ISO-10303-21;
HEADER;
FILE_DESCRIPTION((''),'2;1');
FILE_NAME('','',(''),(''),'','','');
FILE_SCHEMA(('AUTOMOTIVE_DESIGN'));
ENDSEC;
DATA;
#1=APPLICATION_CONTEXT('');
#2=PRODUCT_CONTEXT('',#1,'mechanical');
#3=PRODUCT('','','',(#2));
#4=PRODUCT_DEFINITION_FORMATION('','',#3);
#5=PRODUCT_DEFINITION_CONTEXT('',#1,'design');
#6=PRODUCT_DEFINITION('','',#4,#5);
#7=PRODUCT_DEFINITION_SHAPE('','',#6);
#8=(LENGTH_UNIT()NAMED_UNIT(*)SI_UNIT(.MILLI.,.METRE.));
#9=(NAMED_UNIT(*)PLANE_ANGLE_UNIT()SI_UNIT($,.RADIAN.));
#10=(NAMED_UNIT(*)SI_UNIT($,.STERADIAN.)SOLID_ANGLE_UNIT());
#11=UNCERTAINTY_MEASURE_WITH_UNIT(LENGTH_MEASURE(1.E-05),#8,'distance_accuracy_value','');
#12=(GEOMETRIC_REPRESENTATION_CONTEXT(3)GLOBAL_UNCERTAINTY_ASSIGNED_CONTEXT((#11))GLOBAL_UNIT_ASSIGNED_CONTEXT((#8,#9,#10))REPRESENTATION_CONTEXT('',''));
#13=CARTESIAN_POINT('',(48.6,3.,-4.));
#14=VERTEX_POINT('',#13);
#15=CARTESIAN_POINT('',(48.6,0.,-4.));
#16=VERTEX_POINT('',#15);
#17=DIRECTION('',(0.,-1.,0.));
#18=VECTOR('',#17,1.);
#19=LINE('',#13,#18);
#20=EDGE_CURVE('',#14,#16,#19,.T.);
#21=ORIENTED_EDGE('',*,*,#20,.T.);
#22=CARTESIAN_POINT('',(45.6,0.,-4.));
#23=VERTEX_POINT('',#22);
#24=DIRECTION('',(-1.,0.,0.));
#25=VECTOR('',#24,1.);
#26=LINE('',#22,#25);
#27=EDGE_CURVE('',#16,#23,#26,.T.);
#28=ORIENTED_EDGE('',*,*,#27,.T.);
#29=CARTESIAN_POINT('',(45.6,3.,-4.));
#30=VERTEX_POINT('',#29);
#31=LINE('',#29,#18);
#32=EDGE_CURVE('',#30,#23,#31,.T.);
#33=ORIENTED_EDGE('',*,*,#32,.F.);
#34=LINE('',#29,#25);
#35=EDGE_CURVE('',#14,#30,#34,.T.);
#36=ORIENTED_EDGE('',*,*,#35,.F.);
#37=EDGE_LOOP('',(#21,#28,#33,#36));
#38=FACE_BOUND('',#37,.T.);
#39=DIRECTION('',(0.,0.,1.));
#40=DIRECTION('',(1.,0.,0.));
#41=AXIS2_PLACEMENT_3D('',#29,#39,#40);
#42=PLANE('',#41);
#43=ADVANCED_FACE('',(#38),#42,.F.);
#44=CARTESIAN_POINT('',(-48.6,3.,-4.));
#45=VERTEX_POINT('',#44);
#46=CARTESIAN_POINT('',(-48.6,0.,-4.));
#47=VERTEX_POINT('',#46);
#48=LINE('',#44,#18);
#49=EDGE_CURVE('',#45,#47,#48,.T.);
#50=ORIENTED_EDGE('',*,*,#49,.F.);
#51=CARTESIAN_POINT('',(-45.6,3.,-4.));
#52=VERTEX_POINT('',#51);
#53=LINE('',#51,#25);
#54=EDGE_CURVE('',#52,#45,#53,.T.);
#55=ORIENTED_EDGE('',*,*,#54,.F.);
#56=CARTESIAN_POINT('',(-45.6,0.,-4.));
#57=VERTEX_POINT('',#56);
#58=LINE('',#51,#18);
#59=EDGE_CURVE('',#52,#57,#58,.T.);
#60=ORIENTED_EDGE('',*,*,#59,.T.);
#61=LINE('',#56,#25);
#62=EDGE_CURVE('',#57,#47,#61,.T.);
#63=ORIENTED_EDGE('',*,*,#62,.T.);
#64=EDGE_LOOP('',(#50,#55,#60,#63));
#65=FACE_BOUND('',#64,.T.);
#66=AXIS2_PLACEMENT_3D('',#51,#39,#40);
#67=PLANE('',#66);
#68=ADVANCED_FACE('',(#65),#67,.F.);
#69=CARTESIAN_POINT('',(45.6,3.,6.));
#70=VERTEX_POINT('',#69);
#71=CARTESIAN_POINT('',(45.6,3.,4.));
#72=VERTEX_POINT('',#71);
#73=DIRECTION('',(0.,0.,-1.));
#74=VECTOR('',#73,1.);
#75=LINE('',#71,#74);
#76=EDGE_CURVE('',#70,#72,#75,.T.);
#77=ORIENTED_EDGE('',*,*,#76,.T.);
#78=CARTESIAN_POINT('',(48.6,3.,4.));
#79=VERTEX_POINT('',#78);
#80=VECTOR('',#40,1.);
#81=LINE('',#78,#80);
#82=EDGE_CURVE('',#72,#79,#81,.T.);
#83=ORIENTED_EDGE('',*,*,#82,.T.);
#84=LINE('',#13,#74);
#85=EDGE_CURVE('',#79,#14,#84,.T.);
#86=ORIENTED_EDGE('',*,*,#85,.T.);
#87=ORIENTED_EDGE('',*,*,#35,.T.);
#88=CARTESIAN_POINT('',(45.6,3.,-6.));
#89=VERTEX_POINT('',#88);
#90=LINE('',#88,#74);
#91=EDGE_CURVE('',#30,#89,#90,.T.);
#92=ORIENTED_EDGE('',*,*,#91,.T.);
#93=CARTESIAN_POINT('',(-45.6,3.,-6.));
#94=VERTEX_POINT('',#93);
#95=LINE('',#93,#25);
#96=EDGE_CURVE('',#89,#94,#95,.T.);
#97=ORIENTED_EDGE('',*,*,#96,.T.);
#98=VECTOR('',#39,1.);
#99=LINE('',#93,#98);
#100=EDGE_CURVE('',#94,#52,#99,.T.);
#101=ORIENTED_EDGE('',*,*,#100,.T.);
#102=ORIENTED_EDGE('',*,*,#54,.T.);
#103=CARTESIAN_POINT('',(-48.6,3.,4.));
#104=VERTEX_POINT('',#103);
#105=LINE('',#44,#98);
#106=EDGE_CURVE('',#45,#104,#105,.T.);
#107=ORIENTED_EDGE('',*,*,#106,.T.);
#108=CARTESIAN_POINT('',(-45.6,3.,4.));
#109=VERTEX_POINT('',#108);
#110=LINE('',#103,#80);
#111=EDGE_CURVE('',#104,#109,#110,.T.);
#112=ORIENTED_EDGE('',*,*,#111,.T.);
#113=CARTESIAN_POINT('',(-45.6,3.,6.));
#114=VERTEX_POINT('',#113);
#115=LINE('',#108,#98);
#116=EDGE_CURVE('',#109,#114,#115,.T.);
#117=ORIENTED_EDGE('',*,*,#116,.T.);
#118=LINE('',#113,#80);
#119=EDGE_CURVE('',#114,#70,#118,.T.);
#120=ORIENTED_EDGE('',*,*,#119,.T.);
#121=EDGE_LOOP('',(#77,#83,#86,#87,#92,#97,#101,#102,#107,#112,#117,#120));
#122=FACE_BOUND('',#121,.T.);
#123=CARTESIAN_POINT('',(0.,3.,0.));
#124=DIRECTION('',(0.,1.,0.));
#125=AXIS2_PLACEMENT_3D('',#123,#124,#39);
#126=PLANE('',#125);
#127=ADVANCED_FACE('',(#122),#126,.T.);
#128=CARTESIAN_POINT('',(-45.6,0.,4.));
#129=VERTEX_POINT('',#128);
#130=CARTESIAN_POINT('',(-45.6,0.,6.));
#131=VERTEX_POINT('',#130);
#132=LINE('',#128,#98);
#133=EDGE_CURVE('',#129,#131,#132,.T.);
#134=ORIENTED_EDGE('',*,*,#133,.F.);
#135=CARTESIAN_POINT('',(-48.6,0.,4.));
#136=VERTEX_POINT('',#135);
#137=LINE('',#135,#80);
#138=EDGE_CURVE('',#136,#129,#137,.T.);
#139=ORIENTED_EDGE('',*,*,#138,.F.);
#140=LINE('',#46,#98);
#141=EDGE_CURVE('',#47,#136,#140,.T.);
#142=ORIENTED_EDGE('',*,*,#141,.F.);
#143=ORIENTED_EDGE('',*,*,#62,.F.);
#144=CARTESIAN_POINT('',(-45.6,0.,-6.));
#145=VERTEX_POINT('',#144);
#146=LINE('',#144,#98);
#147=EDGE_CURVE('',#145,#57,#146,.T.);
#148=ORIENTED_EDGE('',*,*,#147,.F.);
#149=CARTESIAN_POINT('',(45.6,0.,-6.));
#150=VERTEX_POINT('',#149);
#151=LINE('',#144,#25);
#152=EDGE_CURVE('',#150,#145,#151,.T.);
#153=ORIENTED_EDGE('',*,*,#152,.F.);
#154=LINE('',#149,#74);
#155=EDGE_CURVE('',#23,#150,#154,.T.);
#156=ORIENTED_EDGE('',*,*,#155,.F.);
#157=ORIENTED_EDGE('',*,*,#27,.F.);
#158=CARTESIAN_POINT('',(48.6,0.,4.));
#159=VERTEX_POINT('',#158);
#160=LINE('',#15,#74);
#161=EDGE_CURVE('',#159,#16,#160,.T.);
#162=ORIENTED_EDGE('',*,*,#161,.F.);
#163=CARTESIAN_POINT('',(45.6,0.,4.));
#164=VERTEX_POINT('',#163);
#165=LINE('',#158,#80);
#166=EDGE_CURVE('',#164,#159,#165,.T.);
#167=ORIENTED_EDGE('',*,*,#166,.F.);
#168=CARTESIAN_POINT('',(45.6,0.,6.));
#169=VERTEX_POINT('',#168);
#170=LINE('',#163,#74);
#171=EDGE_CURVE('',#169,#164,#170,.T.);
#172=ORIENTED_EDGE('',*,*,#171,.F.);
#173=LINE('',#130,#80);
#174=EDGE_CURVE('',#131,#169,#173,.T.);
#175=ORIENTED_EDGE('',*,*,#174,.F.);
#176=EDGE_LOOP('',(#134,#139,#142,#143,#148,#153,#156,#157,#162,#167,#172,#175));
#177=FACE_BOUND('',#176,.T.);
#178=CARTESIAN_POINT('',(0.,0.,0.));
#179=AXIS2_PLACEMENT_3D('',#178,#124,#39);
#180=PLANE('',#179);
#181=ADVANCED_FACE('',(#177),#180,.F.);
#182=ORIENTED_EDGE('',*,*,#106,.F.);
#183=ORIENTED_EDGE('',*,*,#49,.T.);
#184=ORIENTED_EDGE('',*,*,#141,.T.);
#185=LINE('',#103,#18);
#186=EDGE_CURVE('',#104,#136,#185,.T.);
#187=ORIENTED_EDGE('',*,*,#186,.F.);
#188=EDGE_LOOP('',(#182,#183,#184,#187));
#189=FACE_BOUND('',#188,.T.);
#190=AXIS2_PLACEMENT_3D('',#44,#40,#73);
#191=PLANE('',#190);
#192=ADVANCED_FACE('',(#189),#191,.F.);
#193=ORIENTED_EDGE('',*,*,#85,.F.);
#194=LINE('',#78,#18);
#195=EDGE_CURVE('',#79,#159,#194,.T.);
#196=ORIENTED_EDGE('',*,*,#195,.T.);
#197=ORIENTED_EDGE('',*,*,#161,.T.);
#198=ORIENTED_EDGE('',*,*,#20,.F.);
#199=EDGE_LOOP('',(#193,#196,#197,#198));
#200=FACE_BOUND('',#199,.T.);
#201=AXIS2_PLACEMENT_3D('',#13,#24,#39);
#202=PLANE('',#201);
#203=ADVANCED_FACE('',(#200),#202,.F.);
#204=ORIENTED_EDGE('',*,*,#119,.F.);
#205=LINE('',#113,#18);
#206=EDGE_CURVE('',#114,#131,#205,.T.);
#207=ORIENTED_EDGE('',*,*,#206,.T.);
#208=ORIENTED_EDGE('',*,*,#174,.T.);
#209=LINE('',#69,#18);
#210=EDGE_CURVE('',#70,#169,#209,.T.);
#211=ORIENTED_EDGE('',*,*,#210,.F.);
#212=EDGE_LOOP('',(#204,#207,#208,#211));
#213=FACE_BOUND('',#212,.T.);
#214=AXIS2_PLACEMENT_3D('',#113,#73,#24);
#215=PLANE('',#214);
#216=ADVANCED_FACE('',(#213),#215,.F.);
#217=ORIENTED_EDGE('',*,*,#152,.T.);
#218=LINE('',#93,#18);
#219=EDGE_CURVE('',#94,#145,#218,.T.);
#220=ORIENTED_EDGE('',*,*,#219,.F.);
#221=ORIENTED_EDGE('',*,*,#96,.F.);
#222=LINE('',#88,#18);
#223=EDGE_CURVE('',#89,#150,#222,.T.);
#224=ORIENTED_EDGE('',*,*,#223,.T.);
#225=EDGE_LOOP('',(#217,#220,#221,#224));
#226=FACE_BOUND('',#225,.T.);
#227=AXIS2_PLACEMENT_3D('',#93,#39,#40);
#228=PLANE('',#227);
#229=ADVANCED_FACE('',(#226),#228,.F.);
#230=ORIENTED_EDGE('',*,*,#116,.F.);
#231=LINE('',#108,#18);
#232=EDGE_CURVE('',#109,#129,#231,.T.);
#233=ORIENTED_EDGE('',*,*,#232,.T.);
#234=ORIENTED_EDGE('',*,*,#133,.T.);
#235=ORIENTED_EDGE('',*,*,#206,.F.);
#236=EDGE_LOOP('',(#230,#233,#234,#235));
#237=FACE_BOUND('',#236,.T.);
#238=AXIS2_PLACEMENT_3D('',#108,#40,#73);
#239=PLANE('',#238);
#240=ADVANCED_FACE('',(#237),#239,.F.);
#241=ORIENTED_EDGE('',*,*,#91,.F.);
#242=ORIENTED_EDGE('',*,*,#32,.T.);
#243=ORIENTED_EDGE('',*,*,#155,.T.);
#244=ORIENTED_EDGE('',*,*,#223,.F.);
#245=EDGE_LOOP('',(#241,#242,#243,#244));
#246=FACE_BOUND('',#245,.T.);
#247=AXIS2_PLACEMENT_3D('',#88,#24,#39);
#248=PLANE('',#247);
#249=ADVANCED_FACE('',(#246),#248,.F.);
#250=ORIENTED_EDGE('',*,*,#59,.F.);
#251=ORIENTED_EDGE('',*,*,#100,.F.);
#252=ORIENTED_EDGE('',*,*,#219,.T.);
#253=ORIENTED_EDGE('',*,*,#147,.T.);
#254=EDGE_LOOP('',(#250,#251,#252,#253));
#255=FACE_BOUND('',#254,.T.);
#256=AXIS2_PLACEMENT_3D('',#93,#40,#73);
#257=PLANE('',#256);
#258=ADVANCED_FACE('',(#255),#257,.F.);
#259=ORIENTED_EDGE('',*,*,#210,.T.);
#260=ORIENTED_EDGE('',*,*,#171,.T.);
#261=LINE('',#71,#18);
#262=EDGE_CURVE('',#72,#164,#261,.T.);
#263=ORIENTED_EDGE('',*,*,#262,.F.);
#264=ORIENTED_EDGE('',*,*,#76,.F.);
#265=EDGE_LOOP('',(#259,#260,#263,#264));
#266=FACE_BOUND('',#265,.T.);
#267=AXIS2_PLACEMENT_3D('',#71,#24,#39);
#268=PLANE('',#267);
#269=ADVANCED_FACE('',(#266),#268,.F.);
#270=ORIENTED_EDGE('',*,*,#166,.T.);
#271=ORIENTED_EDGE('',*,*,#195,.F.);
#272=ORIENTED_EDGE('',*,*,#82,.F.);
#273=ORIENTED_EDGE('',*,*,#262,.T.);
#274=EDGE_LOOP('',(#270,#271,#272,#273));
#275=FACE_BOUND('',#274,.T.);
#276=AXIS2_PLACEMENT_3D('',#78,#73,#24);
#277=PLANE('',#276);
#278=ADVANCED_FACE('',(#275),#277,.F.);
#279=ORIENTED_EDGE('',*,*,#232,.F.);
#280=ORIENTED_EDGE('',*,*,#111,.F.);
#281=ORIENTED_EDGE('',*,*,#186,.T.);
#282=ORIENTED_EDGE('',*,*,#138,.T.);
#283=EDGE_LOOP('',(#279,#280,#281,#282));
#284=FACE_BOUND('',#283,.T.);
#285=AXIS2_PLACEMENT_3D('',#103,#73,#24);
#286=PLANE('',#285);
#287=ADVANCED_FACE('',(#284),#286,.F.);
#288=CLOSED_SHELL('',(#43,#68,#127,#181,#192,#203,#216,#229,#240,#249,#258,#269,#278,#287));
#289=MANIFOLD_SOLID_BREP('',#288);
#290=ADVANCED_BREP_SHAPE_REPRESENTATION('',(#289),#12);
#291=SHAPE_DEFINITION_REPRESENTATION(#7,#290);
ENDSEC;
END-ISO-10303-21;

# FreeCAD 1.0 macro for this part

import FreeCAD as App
import Part
import Sketcher

V = App.Vector


def add_polygon(sketch, points):
    """Adds a closed chain of lines whose ends are joined by coincident constraints."""
    first, n = sketch.GeometryCount, len(points)
    for a, b in zip(points, points[1:] + points[:1]):
        sketch.addGeometry(Part.LineSegment(App.Vector(*a, 0), App.Vector(*b, 0)), False)
    for i in range(n):
        sketch.addConstraint(Sketcher.Constraint("Coincident", first + i, 2, first + (i + 1) % n, 1))

doc = App.newDocument("Part")
body = doc.addObject("PartDesign::Body", "Body")

# Sketch on XZ plane
sketch1 = body.newObject("Sketcher::SketchObject", "Sketch")
sketch1.AttachmentSupport = (doc.getObject("XZ_Plane"), [""])
sketch1.MapMode = "FlatFace"
add_polygon(sketch1, [(-45.6, -6), (-45.6, -4), (-48.6, -4), (-48.6, 4), (-45.6, 4), (-45.6, 6), (45.6, 6), (45.6, 4), (48.6, 4), (48.6, -4), (45.6, -4), (45.6, -6)])  # lines 0-11
sketch1.addConstraint([
    Sketcher.Constraint("Vertical", 0),
    Sketcher.Constraint("Horizontal", 1),
    Sketcher.Constraint("Vertical", 2),
    Sketcher.Constraint("Horizontal", 3),
    Sketcher.Constraint("Vertical", 4),
    Sketcher.Constraint("Horizontal", 5),
    Sketcher.Constraint("Vertical", 6),
    Sketcher.Constraint("Horizontal", 7),
    Sketcher.Constraint("Vertical", 8),
    Sketcher.Constraint("Horizontal", 9),
    Sketcher.Constraint("Vertical", 10),
    Sketcher.Constraint("Horizontal", 11),
    Sketcher.Constraint("Symmetric", 0, 2, 6, 2, -1, 1),
    Sketcher.Constraint("Symmetric", 2, 2, 8, 2, -1, 1),
    Sketcher.Constraint("Symmetric", 4, 2, 10, 2, -1, 1),
    Sketcher.Constraint("Symmetric", 3, 2, 6, 2, -2),
    Sketcher.Constraint("DistanceX", 1, 2, 1, 1, 3.0),
    Sketcher.Constraint("DistanceY", 0, 1, 0, 2, 2.0),
    Sketcher.Constraint("DistanceY", 2, 1, 2, 2, 8.0),
    Sketcher.Constraint("DistanceX", 5, 1, 5, 2, 91.2),
])
pad1 = body.newObject("PartDesign::Pad", "Pad")
pad1.Profile = sketch1
pad1.Length = 3
pad1.Reversed = True

doc.recompute()
